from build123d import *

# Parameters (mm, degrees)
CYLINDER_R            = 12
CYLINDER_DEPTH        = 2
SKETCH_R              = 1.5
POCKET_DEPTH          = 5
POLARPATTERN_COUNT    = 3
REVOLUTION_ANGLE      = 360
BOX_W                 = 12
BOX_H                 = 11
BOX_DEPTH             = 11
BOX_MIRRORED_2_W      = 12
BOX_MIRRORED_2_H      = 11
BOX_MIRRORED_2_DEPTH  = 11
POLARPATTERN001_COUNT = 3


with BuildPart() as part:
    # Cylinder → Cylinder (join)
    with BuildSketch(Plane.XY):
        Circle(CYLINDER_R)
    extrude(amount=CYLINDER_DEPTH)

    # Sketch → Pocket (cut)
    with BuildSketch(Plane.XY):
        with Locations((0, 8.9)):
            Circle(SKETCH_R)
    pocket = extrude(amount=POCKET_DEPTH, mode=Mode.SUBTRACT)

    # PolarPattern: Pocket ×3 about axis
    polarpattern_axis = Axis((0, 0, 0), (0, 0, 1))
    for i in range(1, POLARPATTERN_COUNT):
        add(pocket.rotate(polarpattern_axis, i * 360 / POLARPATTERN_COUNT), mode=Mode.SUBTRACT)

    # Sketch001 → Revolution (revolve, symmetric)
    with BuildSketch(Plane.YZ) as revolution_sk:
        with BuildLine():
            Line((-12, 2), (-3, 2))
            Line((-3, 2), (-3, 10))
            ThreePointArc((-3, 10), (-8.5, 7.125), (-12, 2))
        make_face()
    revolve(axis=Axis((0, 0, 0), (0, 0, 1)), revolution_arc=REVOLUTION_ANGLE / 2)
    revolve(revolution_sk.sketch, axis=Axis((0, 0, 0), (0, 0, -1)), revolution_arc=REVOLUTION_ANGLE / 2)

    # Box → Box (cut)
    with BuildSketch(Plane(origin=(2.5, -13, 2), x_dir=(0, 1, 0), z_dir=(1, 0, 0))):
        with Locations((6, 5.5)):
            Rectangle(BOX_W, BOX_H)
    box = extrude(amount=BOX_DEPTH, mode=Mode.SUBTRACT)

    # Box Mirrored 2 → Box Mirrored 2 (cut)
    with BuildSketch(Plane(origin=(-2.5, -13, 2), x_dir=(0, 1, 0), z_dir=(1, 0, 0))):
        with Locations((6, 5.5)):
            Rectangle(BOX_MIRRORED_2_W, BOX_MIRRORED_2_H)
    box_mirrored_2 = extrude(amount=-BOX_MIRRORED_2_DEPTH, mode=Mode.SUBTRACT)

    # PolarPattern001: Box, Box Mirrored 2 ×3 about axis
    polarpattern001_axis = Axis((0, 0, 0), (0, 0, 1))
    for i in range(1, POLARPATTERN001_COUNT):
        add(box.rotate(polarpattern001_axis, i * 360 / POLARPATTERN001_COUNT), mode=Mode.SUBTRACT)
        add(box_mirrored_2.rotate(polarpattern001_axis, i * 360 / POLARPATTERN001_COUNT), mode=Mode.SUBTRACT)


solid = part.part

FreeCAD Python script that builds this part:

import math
import FreeCAD as App
import Part
import Sketcher
from FreeCAD import Vector
Q = App.Units.Quantity


def add_polygon(sketch, points):
    """Adds a closed chain of lines whose ends are joined by coincident constraints."""
    first, n = sketch.GeometryCount, len(points)
    for a, b in zip(points, points[1:] + points[:1]):
        sketch.addGeometry(Part.LineSegment(App.Vector(*a, 0), App.Vector(*b, 0)), False)
    for i in range(n):
        sketch.addConstraint(Sketcher.Constraint("Coincident", first + i, 2, first + (i + 1) % n, 1))

doc = App.newDocument("Part")
params = doc.addObject("Spreadsheet::Sheet", "Params")
for row, (alias, value) in enumerate([
    ("sketch1_diameter", "24 mm"),
    ("pad1_length", "2 mm"),
    ("sketch2_diameter", "3 mm"),
    ("pocket1_length", "5 mm"),
    ("sketch3_width", "9 mm"),
    ("sketch3_height", "8 mm"),
    ("revolution_angle", "180 deg"),
    ("sketch4_width", "9 mm"),
    ("sketch4_height", "8 mm"),
    ("revolution2_angle", "180 deg"),
    ("sketch5_width", "12 mm"),
    ("sketch5_height", "11 mm"),
    ("pocket2_length", "11 mm"),
    ("sketch6_width", "12 mm"),
    ("sketch6_height", "11 mm"),
    ("pocket3_length", "11 mm"),
], start=1):
    params.set(f"A{row}", alias)
    params.set(f"B{row}", "=" + value)
    params.setAlias(f"B{row}", alias)

body = doc.addObject("PartDesign::Body", "Body")

# Sketch on XY plane
sketch1 = doc.addObject("Sketcher::SketchObject", "Sketch")
body.addObject(sketch1)
sketch1.AttachmentSupport = (doc.XY_Plane, [""])
sketch1.MapMode = "FlatFace"
sketch1.addGeometry(Part.Circle(Vector(0, 0, 0), Vector(0, 0, 1), 12), False)
sketch1.addConstraint([
    Sketcher.Constraint("Coincident", 0, 3, -1, 1),
    Sketcher.Constraint("Diameter", 0, Q("24 mm")),
])
sketch1.setExpression("Constraints[1]", "Params.sketch1_diameter")
pad1 = doc.addObject("PartDesign::Pad", "Pad")
body.addObject(pad1)
pad1.Profile = sketch1
pad1.setExpression("Length", "Params.pad1_length")

# Sketch on XY plane
sketch2 = doc.addObject("Sketcher::SketchObject", "Sketch001")
body.addObject(sketch2)
sketch2.AttachmentSupport = (doc.XY_Plane, [""])
sketch2.MapMode = "FlatFace"
sketch2.addGeometry(Part.Circle(Vector(0, 8.9, 0), Vector(0, 0, 1), 1.5), False)
sketch2.addConstraint([
    Sketcher.Constraint("PointOnObject", 0, 3, -2),
    Sketcher.Constraint("Diameter", 0, Q("3 mm")),
    Sketcher.Constraint("DistanceY", -1, 1, 0, 3, Q("8.9 mm")),
])
sketch2.setExpression("Constraints[1]", "Params.sketch2_diameter")
pocket1 = doc.addObject("PartDesign::Pocket", "Pocket")
body.addObject(pocket1)
pocket1.Profile = sketch2
pocket1.setExpression("Length", "Params.pocket1_length")
pocket1.Reversed = True
doc.recompute()

polarpattern = doc.addObject("PartDesign::PolarPattern", "PolarPattern")
body.addObject(polarpattern)
polarpattern.Originals = [pocket1]
polarpattern.Axis = (doc.Z_Axis, [""])
polarpattern.Angle = 360
polarpattern.Occurrences = 3
body.Tip = polarpattern

# Sketch on YZ plane
sketch3 = doc.addObject("Sketcher::SketchObject", "Sketch002")
body.addObject(sketch3)
sketch3.AttachmentSupport = (doc.YZ_Plane, [""])
sketch3.MapMode = "FlatFace"
sketch3.addGeometry([
    Part.LineSegment(Vector(-12, 2, 0), Vector(-3, 2, 0)),
    Part.LineSegment(Vector(-3, 2, 0), Vector(-3, 10, 0)),
    Part.ArcOfCircle(Part.Circle(Vector(0, -2.4375, 0), Vector(0, 0, 1), 12.794194), math.radians(103.561052), math.radians(159.706026)),
], False)
sketch3.addConstraint([
    Sketcher.Constraint("Coincident", 0, 2, 1, 1),
    Sketcher.Constraint("Coincident", 1, 2, 2, 1),
    Sketcher.Constraint("Coincident", 2, 2, 0, 1),
    Sketcher.Constraint("Horizontal", 0),
    Sketcher.Constraint("Vertical", 1),
    Sketcher.Constraint("PointOnObject", 2, 3, -2),
    Sketcher.Constraint("DistanceX", 0, 1, 0, 2, Q("9 mm")),
    Sketcher.Constraint("DistanceY", 1, 1, 1, 2, Q("8 mm")),
    Sketcher.Constraint("DistanceX", 0, 2, -1, 1, Q("3 mm")),
    Sketcher.Constraint("DistanceY", -1, 1, 0, 2, Q("2 mm")),
])
sketch3.setExpression("Constraints[6]", "Params.sketch3_width")
sketch3.setExpression("Constraints[7]", "Params.sketch3_height")
revolution = doc.addObject("PartDesign::Revolution", "Revolution")
body.addObject(revolution)
revolution.Profile = sketch3
revolution.ReferenceAxis = (sketch3, ["V_Axis"])
revolution.setExpression("Angle", "Params.revolution_angle")

# Sketch on YZ plane
sketch4 = doc.addObject("Sketcher::SketchObject", "Sketch003")
body.addObject(sketch4)
sketch4.AttachmentSupport = (doc.YZ_Plane, [""])
sketch4.MapMode = "FlatFace"
sketch4.addGeometry([
    Part.LineSegment(Vector(-12, 2, 0), Vector(-3, 2, 0)),
    Part.LineSegment(Vector(-3, 2, 0), Vector(-3, 10, 0)),
    Part.ArcOfCircle(Part.Circle(Vector(0, -2.4375, 0), Vector(0, 0, 1), 12.794194), math.radians(103.561052), math.radians(159.706026)),
], False)
sketch4.addConstraint([
    Sketcher.Constraint("Coincident", 0, 2, 1, 1),
    Sketcher.Constraint("Coincident", 1, 2, 2, 1),
    Sketcher.Constraint("Coincident", 2, 2, 0, 1),
    Sketcher.Constraint("Horizontal", 0),
    Sketcher.Constraint("Vertical", 1),
    Sketcher.Constraint("PointOnObject", 2, 3, -2),
    Sketcher.Constraint("DistanceX", 0, 1, 0, 2, Q("9 mm")),
    Sketcher.Constraint("DistanceY", 1, 1, 1, 2, Q("8 mm")),
    Sketcher.Constraint("DistanceX", 0, 2, -1, 1, Q("3 mm")),
    Sketcher.Constraint("DistanceY", -1, 1, 0, 2, Q("2 mm")),
])
sketch4.setExpression("Constraints[6]", "Params.sketch4_width")
sketch4.setExpression("Constraints[7]", "Params.sketch4_height")
revolution2 = doc.addObject("PartDesign::Revolution", "Revolution001")
body.addObject(revolution2)
revolution2.Profile = sketch4
revolution2.ReferenceAxis = (sketch4, ["V_Axis"])
revolution2.setExpression("Angle", "Params.revolution2_angle")
revolution2.Reversed = True

# Sketch on YZ plane
sketch5 = doc.addObject("Sketcher::SketchObject", "Sketch004")
body.addObject(sketch5)
sketch5.AttachmentSupport = (doc.YZ_Plane, [""])
sketch5.MapMode = "FlatFace"
sketch5.AttachmentOffset = App.Placement(Vector(0, 0, 2.5), App.Rotation())
add_polygon(sketch5, [(-13, 13), (-13, 2), (-1, 2), (-1, 13)])  # lines 0-3
sketch5.addConstraint([
    Sketcher.Constraint("Vertical", 0),
    Sketcher.Constraint("Horizontal", 1),
    Sketcher.Constraint("Vertical", 2),
    Sketcher.Constraint("Horizontal", 3),
    Sketcher.Constraint("DistanceX", 1, 1, 1, 2, Q("12 mm")),
    Sketcher.Constraint("DistanceY", 0, 2, 0, 1, Q("11 mm")),
    Sketcher.Constraint("DistanceX", 0, 2, -1, 1, Q("13 mm")),
    Sketcher.Constraint("DistanceY", -1, 1, 0, 2, Q("2 mm")),
])
sketch5.setExpression("Constraints[8]", "Params.sketch5_width")
sketch5.setExpression("Constraints[9]", "Params.sketch5_height")
pocket2 = doc.addObject("PartDesign::Pocket", "Pocket001")
body.addObject(pocket2)
pocket2.Profile = sketch5
pocket2.setExpression("Length", "Params.pocket2_length")
pocket2.Reversed = True

# Sketch on YZ plane
sketch6 = doc.addObject("Sketcher::SketchObject", "Sketch005")
body.addObject(sketch6)
sketch6.AttachmentSupport = (doc.YZ_Plane, [""])
sketch6.MapMode = "FlatFace"
sketch6.AttachmentOffset = App.Placement(Vector(0, 0, -2.5), App.Rotation())
add_polygon(sketch6, [(-13, 13), (-13, 2), (-1, 2), (-1, 13)])  # lines 0-3
sketch6.addConstraint([
    Sketcher.Constraint("Vertical", 0),
    Sketcher.Constraint("Horizontal", 1),
    Sketcher.Constraint("Vertical", 2),
    Sketcher.Constraint("Horizontal", 3),
    Sketcher.Constraint("DistanceX", 1, 1, 1, 2, Q("12 mm")),
    Sketcher.Constraint("DistanceY", 0, 2, 0, 1, Q("11 mm")),
    Sketcher.Constraint("DistanceX", 0, 2, -1, 1, Q("13 mm")),
    Sketcher.Constraint("DistanceY", -1, 1, 0, 2, Q("2 mm")),
])
sketch6.setExpression("Constraints[8]", "Params.sketch6_width")
sketch6.setExpression("Constraints[9]", "Params.sketch6_height")
pocket3 = doc.addObject("PartDesign::Pocket", "Pocket002")
body.addObject(pocket3)
pocket3.Profile = sketch6
pocket3.setExpression("Length", "Params.pocket3_length")
doc.recompute()

polarpattern2 = doc.addObject("PartDesign::PolarPattern", "PolarPattern001")
body.addObject(polarpattern2)
polarpattern2.Originals = [pocket2, pocket3]
polarpattern2.Axis = (doc.Z_Axis, [""])
polarpattern2.Angle = 360
polarpattern2.Occurrences = 3
body.Tip = polarpattern2

doc.recompute()
